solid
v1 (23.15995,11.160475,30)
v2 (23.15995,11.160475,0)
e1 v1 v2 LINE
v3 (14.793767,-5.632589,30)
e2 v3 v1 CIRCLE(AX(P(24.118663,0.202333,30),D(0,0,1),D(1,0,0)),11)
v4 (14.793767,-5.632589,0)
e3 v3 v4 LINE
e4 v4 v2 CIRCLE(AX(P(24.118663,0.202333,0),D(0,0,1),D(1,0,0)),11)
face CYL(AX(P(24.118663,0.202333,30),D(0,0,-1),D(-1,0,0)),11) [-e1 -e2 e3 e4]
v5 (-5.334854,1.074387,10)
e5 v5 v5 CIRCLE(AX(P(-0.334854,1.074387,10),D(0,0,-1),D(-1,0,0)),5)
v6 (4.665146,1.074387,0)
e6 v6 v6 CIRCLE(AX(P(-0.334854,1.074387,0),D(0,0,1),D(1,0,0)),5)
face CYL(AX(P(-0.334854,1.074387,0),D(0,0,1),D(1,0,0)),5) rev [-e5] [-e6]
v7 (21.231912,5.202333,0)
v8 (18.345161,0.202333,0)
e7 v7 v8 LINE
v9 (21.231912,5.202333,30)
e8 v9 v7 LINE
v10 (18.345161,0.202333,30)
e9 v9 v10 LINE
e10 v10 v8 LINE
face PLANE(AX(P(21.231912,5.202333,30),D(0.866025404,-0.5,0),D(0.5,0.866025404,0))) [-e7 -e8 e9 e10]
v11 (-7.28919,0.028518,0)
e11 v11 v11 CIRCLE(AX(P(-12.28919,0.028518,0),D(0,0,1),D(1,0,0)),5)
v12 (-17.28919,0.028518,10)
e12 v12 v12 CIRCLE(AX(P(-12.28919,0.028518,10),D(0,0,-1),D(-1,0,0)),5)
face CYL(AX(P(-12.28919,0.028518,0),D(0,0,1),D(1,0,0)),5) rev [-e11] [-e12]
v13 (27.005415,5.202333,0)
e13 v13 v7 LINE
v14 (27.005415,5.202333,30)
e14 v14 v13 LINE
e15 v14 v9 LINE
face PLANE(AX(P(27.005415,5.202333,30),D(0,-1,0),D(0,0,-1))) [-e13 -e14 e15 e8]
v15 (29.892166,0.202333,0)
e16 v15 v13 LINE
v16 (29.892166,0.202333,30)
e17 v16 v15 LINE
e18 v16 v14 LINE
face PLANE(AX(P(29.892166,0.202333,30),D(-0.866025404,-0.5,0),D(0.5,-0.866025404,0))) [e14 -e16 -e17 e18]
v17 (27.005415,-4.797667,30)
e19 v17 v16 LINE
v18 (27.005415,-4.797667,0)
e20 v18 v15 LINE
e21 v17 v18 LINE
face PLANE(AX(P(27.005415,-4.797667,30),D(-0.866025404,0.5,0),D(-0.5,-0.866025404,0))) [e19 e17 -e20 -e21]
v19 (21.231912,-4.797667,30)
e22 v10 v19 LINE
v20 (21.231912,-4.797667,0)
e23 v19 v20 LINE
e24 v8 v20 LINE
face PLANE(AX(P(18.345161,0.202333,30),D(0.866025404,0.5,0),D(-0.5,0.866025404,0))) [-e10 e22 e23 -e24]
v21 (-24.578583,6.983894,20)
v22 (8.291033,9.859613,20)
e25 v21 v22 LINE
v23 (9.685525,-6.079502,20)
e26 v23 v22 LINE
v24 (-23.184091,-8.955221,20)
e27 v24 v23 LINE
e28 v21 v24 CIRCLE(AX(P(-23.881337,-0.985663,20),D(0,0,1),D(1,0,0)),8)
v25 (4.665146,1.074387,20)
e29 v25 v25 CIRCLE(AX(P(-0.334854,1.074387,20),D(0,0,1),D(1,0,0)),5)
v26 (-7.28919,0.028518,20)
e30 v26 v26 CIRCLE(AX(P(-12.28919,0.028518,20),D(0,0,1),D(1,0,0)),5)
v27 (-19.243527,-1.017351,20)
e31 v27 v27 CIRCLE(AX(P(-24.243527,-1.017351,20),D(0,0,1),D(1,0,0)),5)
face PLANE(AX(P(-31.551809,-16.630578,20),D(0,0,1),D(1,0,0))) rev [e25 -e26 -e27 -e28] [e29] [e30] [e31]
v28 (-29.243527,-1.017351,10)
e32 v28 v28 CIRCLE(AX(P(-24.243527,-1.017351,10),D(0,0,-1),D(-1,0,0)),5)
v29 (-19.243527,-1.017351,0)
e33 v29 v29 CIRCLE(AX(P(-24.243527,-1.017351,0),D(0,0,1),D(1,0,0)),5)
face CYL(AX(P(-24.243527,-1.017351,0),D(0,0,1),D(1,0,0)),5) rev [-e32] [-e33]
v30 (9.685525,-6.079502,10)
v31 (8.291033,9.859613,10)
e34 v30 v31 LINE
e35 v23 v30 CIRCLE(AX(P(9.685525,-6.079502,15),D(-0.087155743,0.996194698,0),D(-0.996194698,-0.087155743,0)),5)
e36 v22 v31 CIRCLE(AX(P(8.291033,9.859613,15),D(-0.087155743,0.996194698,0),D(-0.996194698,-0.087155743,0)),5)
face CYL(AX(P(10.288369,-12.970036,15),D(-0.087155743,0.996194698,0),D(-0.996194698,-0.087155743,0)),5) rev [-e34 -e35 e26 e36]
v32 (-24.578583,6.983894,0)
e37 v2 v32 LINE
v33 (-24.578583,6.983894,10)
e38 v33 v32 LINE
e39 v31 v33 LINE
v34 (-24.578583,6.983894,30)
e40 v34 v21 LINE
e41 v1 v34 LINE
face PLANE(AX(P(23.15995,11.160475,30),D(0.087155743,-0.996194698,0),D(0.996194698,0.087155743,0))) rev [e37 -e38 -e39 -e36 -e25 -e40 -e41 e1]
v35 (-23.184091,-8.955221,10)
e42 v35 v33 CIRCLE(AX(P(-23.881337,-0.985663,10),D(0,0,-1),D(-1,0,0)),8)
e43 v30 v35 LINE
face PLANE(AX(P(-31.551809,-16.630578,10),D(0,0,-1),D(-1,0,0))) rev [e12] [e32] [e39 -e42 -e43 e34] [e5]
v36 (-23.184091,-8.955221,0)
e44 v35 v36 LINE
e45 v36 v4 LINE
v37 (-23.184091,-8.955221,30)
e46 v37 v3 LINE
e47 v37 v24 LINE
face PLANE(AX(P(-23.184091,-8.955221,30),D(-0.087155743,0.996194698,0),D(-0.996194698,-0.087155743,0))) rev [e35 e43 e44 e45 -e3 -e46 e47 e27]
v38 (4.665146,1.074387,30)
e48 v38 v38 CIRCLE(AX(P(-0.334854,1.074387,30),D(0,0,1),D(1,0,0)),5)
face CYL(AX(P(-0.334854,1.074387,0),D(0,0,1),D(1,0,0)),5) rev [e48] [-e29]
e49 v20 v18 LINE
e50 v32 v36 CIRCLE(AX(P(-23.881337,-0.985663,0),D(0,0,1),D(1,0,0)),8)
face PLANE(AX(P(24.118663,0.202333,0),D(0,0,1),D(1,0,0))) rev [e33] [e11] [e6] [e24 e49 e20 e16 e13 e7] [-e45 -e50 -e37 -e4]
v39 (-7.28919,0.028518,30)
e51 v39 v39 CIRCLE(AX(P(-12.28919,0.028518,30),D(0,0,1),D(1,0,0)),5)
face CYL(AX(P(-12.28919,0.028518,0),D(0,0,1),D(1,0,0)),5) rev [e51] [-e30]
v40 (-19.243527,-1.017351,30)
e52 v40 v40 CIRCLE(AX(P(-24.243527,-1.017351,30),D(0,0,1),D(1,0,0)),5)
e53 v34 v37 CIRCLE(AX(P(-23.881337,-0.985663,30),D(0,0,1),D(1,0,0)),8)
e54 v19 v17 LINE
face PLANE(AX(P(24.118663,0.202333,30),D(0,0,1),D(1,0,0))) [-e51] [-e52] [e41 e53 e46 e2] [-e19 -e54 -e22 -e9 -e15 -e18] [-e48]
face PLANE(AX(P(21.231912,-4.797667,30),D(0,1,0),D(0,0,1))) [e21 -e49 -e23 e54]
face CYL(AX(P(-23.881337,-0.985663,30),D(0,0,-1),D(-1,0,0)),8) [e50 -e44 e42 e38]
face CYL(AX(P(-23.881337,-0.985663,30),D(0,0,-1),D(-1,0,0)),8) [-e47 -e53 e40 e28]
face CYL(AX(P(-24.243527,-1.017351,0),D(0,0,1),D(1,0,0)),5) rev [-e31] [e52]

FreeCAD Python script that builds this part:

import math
import FreeCAD as App
import Part
import Sketcher
Q = App.Units.Quantity


def add_polygon(sketch, points):
    """Adds a closed chain of lines whose ends are joined by coincident constraints."""
    first, n = sketch.GeometryCount, len(points)
    for a, b in zip(points, points[1:] + points[:1]):
        sketch.addGeometry(Part.LineSegment(App.Vector(*a, 0), App.Vector(*b, 0)), False)
    for i in range(n):
        sketch.addConstraint(Sketcher.Constraint("Coincident", first + i, 2, first + (i + 1) % n, 1))

doc = App.newDocument("Part")
body = doc.addObject("PartDesign::Body", "Body")

sketch1 = body.newObject("Sketcher::SketchObject", "Sketch")
sketch1.AttachmentSupport = (doc.getObject("XY_Plane"), [""])
sketch1.MapMode = "FlatFace"
sketch1.addGeometry(Part.LineSegment(App.Vector(23.15995, 11.160475, 0), App.Vector(-24.578583, 6.983894, 0)), False)
sketch1.addGeometry(Part.ArcOfCircle(Part.Circle(App.Vector(-23.881337, -0.985663, 0), App.Vector(0, 0, 1), 8), math.radians(95), math.radians(275)), False)
sketch1.addGeometry(Part.LineSegment(App.Vector(-23.184091, -8.955221, 0), App.Vector(14.793767, -5.632589, 0)), False)
sketch1.addGeometry(Part.ArcOfCircle(Part.Circle(App.Vector(24.118663, 0.202333, 0), App.Vector(0, 0, 1), 11), math.radians(-147.964308), math.radians(95)), False)
add_polygon(sketch1, [(29.892166, 0.202333), (27.005415, -4.797667), (21.231912, -4.797667), (18.345161, 0.202333), (21.231912, 5.202333), (27.005415, 5.202333)])
sketch1.addConstraint([
    Sketcher.Constraint("Tangent", 0, 2, 1, 1),
    Sketcher.Constraint("Tangent", 1, 2, 2, 1),
    Sketcher.Constraint("Coincident", 2, 2, 3, 1),
    Sketcher.Constraint("Tangent", 3, 2, 0, 1),
    Sketcher.Constraint("Horizontal", 5),
    Sketcher.Constraint("Horizontal", 8),
    Sketcher.Constraint("Parallel", 0, 2),
    Sketcher.Constraint("Parallel", 4, 7),
    Sketcher.Constraint("Parallel", 6, 9),
    Sketcher.Constraint("Horizontal", 3, 3, 6, 2),
    Sketcher.Constraint("Horizontal", 6, 2, 9, 2),
    Sketcher.Constraint("Vertical", 5, 2, 7, 2),
    Sketcher.Constraint("Vertical", 4, 2, 8, 2),
    Sketcher.Constraint("Radius", 1, Q("8 mm")),
    Sketcher.Constraint("Radius", 3, Q("11 mm")),
    Sketcher.Constraint("Angle", 0, Q("-175 deg")),
    Sketcher.Constraint("Angle", 4, Q("-120 deg")),
    Sketcher.Constraint("DistanceX", 1, 3, 3, 3, Q("48 mm")),
    Sketcher.Constraint("DistanceY", 4, 2, 3, 3, Q("5 mm")),
    Sketcher.Constraint("DistanceX", 5, 2, 5, 1, Q("5.773503 mm")),
    Sketcher.Constraint("DistanceX", 1, 2, -1, 1, Q("23.184091 mm")),
    Sketcher.Constraint("DistanceY", 1, 2, -1, 1, Q("8.955221 mm")),
    Sketcher.Constraint("DistanceX", -1, 1, 5, 2, Q("21.231912 mm")),
])
pad1 = body.newObject("PartDesign::Pad", "Pad")
pad1.Profile = sketch1
pad1.Length = 30

sketch2 = body.newObject("Sketcher::SketchObject", "Sketch001")
sketch2.Placement = App.Placement(App.Vector(-0.793072, 9.064857, 0), App.Rotation(App.Vector(0.996194698, 0.087155743, 0), App.Vector(0, 0, -1), App.Vector(-0.087155743, 0.996194698, 0), "ZXY"))
sketch2.addGeometry([
    Part.LineSegment(App.Vector(9.118805, -10, 0), App.Vector(-32.881195, -10, 0)),
    Part.LineSegment(App.Vector(-32.881195, -10, 0), App.Vector(-32.881195, -20, 0)),
    Part.LineSegment(App.Vector(-32.881195, -20, 0), App.Vector(9.118805, -20, 0)),
    Part.ArcOfCircle(Part.Circle(App.Vector(9.118805, -15, 0), App.Vector(0, 0, 1), 5), math.radians(-90), math.radians(90)),
], False)
sketch2.addConstraint([
    Sketcher.Constraint("Coincident", 0, 2, 1, 1),
    Sketcher.Constraint("Coincident", 1, 2, 2, 1),
    Sketcher.Constraint("Tangent", 2, 2, 3, 1),
    Sketcher.Constraint("Tangent", 3, 2, 0, 1),
    Sketcher.Constraint("Horizontal", 0),
    Sketcher.Constraint("Vertical", 1),
    Sketcher.Constraint("Horizontal", 2),
    Sketcher.Constraint("Radius", 3, Q("5 mm")),
    Sketcher.Constraint("DistanceX", 0, 2, 0, 1, Q("42 mm")),
    Sketcher.Constraint("DistanceY", 3, 3, -1, 1, Q("15 mm")),
    Sketcher.Constraint("DistanceX", -1, 1, 3, 3, Q("9.118805 mm")),
])
pocket1 = body.newObject("PartDesign::Pocket", "Pocket")
pocket1.Profile = sketch2
pocket1.Type = "ThroughAll"

sketch3 = body.newObject("Sketcher::SketchObject", "Sketch002")
sketch3.AttachmentSupport = (doc.getObject("XY_Plane"), [""])
sketch3.MapMode = "FlatFace"
sketch3.AttachmentOffset = App.Placement(App.Vector(0, 0, 30), App.Rotation())
sketch3.addGeometry([
    Part.Circle(App.Vector(-24.243527, -1.017351, 0), App.Vector(0, 0, 1), 5),
    Part.Circle(App.Vector(-12.28919, 0.028518, 0), App.Vector(0, 0, 1), 5),
    Part.Circle(App.Vector(-0.334854, 1.074387, 0), App.Vector(0, 0, 1), 5),
], False)
sketch3.addConstraint([
    Sketcher.Constraint("Equal", 0, 1),
    Sketcher.Constraint("Equal", 1, 2),
    Sketcher.Constraint("Diameter", 0, Q("10 mm")),
    Sketcher.Constraint("DistanceY", 0, 3, -1, 1, Q("1.017351 mm")),
    Sketcher.Constraint("DistanceX", 1, 3, -1, 1, Q("12.28919 mm")),
    Sketcher.Constraint("DistanceY", 0, 3, 1, 3, Q("1.045869 mm")),
    Sketcher.Constraint("DistanceY", 1, 3, 2, 3, Q("1.045869 mm")),
    Sketcher.Constraint("DistanceX", 0, 3, -1, 1, Q("24.243527 mm")),
    Sketcher.Constraint("DistanceX", 2, 3, -1, 1, Q("0.334854 mm")),
])
pocket2 = body.newObject("PartDesign::Pocket", "Pocket001")
pocket2.Profile = sketch3
pocket2.Type = "ThroughAll"

doc.recompute()
